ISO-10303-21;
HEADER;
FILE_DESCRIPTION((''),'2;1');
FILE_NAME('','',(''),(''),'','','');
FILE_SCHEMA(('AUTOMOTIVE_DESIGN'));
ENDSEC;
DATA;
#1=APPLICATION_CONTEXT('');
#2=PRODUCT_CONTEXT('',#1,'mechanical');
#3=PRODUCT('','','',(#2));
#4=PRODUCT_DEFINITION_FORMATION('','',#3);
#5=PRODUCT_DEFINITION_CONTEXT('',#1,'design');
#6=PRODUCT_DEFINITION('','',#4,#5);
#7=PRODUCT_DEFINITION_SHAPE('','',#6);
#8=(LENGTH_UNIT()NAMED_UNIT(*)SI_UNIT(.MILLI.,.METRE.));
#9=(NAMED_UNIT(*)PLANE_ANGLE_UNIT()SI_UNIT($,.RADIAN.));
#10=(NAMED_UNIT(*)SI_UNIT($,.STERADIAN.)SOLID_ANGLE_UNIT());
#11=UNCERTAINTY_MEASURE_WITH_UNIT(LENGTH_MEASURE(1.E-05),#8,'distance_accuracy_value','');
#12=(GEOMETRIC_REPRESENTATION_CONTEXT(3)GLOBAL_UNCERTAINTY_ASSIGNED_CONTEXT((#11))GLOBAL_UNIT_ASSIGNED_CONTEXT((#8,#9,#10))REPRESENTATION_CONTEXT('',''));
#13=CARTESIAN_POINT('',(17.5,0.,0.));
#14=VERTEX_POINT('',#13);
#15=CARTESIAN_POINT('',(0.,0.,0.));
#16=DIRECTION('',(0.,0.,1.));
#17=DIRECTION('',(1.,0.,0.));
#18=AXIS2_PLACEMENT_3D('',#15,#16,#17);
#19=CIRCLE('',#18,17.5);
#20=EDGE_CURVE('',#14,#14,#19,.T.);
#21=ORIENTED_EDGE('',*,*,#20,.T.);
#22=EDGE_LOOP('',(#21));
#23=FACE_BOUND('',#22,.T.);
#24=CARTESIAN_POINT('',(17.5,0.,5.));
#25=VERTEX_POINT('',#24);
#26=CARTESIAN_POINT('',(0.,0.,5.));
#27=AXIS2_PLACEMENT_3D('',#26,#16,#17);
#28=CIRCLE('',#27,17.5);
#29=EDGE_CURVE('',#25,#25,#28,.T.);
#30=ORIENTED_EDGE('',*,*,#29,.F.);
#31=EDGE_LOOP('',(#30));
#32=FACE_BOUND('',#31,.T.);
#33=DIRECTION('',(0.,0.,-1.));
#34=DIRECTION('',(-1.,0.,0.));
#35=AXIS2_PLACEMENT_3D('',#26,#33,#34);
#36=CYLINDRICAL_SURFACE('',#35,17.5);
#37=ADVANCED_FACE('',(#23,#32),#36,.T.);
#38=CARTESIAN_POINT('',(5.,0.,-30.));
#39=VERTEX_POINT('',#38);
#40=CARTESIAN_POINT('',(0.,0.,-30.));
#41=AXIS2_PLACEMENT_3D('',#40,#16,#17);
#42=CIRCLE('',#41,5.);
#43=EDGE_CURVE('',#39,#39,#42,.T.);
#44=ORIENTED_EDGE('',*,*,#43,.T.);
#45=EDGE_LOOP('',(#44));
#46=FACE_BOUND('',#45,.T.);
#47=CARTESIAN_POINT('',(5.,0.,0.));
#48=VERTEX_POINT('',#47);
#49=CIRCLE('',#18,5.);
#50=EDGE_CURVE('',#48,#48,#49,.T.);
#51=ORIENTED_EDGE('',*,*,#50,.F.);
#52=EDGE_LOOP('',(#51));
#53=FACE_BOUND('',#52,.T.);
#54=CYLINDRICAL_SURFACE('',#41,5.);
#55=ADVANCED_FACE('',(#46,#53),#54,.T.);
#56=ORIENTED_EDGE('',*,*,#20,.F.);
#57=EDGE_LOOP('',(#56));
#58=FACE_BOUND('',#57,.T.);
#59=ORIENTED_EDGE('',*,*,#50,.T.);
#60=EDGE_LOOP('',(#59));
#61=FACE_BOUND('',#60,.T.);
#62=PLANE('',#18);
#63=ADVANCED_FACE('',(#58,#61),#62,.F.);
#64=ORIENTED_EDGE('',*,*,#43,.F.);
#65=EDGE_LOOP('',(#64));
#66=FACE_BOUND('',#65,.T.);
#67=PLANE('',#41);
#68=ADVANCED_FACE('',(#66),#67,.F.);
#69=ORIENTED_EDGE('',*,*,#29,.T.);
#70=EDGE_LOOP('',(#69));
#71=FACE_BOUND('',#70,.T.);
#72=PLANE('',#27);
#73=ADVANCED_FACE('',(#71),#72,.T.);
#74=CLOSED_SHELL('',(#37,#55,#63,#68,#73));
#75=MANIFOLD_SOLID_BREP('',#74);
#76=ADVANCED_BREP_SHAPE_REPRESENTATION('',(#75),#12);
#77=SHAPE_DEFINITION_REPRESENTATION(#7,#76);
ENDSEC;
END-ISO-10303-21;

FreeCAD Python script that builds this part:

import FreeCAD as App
import Part
import Sketcher

V = App.Vector
Q = App.Units.Quantity

doc = App.newDocument("Part")
body = doc.addObject("PartDesign::Body", "Body")

# Sketch on XY plane
sketch1 = body.newObject("Sketcher::SketchObject", "Sketch")
sketch1.AttachmentSupport = (doc.getObject("XY_Plane"), [""])
sketch1.MapMode = "FlatFace"
sketch1.addGeometry(Part.Circle(V(0, 0, 0), V(0, 0, 1), 18), False)
sketch1.addConstraint(Sketcher.Constraint("Coincident", 0, 3, -1, 1))
sketch1.addConstraint(Sketcher.Constraint("Diameter", 0, Q("35 mm")))
pad1 = body.newObject("PartDesign::Pad", "Pad")
pad1.Profile = sketch1
pad1.Length = 5

# Sketch on XY plane
sketch2 = body.newObject("Sketcher::SketchObject", "Sketch001")
sketch2.AttachmentSupport = (doc.getObject("XY_Plane"), [""])
sketch2.MapMode = "FlatFace"
sketch2.addGeometry(Part.Circle(V(0, 0, 0), V(0, 0, 1), 5), False)
sketch2.addConstraint(Sketcher.Constraint("Coincident", 0, 3, -1, 1))
sketch2.addConstraint(Sketcher.Constraint("Diameter", 0, Q("10 mm")))
pad2 = body.newObject("PartDesign::Pad", "Pad001")
pad2.Profile = sketch2
pad2.Length = 30
pad2.Reversed = True

doc.recompute()
